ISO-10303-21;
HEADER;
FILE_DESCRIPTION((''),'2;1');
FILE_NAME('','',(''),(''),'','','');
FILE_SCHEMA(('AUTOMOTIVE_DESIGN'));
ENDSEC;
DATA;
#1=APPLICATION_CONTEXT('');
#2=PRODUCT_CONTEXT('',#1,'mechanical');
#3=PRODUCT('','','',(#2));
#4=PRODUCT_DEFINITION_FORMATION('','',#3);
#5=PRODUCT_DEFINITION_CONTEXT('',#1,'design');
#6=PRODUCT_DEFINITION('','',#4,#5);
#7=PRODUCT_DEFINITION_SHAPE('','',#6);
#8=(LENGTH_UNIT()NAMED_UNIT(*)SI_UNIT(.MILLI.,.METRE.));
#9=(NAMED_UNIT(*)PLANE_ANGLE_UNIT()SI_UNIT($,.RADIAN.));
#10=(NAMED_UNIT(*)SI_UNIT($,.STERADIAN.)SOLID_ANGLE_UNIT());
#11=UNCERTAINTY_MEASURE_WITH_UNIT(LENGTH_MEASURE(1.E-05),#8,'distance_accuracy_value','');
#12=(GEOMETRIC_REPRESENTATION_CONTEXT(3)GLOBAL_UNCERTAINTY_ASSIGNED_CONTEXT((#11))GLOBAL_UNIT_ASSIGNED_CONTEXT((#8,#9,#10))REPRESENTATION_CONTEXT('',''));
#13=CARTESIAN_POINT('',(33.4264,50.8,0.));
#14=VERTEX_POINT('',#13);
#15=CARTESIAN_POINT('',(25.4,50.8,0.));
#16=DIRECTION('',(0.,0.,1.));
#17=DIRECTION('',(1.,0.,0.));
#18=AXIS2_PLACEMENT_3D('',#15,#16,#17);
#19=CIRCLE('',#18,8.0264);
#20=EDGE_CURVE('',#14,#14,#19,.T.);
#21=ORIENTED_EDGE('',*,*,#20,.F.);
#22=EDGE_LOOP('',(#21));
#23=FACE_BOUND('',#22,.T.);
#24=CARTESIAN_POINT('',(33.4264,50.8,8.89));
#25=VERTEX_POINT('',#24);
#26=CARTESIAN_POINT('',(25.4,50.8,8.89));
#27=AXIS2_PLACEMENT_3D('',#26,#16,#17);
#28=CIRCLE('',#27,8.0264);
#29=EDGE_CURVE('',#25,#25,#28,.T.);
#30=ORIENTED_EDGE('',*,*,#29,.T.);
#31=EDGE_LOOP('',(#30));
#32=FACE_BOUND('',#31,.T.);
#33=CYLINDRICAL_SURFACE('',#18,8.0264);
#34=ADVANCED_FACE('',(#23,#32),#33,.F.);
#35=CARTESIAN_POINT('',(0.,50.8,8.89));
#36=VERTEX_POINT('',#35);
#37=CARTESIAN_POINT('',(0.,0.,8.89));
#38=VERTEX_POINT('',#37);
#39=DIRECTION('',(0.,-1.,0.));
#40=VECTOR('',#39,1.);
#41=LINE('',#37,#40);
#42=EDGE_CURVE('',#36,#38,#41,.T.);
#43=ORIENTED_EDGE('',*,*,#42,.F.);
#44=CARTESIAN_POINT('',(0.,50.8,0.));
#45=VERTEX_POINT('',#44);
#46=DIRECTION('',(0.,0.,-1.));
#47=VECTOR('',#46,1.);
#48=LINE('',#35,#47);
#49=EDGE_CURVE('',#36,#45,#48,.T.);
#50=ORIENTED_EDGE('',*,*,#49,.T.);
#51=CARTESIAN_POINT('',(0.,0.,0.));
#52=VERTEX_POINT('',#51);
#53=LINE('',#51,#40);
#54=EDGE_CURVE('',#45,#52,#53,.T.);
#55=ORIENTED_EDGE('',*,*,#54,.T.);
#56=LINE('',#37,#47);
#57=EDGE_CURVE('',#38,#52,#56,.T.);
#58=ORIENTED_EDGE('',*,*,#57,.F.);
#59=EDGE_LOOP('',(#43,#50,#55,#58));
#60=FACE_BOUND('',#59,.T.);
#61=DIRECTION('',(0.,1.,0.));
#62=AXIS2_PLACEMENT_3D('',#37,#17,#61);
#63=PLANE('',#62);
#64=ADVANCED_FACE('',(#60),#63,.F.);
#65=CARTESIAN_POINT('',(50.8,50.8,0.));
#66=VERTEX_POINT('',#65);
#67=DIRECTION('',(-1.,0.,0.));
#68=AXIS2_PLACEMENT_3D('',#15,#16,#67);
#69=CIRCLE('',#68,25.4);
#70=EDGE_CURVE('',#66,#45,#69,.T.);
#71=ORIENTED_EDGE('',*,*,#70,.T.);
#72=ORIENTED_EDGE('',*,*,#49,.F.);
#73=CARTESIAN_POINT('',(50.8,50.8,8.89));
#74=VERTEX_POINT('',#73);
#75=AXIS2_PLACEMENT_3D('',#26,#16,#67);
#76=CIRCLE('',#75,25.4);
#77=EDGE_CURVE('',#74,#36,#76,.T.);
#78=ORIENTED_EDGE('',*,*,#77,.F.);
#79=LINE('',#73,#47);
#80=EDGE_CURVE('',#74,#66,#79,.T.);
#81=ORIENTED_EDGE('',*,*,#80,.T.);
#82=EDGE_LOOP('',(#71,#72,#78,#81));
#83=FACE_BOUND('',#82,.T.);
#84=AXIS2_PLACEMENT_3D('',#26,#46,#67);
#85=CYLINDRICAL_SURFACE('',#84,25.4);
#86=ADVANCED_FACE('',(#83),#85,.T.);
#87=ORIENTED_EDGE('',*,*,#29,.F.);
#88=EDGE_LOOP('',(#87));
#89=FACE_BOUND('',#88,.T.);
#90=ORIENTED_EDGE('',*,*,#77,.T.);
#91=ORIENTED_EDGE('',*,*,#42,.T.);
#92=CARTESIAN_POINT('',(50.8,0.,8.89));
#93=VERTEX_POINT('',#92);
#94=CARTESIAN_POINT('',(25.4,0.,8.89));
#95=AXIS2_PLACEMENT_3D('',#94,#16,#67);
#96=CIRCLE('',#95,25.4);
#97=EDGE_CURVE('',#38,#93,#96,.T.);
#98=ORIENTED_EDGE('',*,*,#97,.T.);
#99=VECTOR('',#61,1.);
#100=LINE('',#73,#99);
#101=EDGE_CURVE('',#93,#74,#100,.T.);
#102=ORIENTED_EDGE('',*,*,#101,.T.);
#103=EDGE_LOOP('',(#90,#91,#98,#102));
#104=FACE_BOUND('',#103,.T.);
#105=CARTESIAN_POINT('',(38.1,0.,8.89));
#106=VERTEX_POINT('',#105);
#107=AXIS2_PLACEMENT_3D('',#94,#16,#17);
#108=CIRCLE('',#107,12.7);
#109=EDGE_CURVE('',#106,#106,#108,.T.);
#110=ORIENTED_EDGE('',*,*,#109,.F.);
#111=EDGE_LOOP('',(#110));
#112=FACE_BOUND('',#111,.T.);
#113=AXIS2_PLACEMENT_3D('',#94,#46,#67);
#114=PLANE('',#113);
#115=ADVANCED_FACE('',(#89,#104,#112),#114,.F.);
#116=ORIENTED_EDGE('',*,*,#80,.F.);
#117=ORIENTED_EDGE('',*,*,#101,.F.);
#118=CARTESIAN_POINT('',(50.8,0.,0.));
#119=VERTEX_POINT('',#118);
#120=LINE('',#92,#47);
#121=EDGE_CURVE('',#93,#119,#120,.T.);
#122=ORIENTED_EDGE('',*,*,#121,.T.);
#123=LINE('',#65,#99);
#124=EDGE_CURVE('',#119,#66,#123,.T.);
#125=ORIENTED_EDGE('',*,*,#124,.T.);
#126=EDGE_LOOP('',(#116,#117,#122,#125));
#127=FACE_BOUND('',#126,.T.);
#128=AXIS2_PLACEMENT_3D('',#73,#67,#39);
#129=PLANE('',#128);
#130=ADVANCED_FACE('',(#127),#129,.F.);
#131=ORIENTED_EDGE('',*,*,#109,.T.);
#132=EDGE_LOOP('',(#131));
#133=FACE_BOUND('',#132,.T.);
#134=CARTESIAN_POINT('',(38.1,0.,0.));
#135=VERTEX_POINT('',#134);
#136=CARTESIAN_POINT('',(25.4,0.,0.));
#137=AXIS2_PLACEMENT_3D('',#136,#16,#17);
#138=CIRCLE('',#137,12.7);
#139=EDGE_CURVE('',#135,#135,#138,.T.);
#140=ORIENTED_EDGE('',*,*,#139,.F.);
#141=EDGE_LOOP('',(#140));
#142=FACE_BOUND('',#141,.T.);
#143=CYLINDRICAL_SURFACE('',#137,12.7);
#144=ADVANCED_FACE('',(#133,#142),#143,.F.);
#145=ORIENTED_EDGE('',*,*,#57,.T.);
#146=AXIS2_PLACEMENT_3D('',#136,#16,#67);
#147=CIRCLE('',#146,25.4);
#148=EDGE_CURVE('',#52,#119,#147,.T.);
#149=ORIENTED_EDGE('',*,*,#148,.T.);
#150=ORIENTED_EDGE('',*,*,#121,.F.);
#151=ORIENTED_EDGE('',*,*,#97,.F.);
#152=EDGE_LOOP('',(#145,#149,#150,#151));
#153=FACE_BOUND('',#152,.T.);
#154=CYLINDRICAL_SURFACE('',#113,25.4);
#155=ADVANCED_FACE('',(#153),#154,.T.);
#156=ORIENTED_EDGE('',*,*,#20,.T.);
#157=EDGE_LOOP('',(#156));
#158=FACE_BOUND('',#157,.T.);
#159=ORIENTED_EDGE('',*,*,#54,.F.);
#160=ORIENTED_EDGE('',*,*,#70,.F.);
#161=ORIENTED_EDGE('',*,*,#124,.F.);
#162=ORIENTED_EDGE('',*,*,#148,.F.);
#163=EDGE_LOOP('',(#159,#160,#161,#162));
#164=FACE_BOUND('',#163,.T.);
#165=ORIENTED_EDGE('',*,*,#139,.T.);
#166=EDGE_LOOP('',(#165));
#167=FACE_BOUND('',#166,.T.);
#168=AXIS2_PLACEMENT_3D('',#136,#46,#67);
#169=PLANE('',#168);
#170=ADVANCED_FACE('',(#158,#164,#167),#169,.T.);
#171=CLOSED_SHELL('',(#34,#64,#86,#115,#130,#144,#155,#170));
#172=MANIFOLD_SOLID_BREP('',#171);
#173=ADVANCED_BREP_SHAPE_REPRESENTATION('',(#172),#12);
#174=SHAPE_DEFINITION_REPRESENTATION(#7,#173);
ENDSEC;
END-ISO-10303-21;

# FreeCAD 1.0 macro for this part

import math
import FreeCAD as App
import Part
import Sketcher

V = App.Vector
Q = App.Units.Quantity

doc = App.newDocument("Part")
body = doc.addObject("PartDesign::Body", "Body")

sketch1 = body.newObject("Sketcher::SketchObject", "Sketch")
sketch1.AttachmentSupport = (doc.getObject("XY_Plane"), [""])
sketch1.MapMode = "FlatFace"
sketch1.addGeometry([
    Part.LineSegment(V(0, 51, 0), V(0, 0, 0)),
    Part.ArcOfCircle(Part.Circle(V(25, 0, 0), V(0, 0, 1), 25), math.radians(180), math.radians(360)),
    Part.LineSegment(V(51, 0, 0), V(51, 51, 0)),
    Part.ArcOfCircle(Part.Circle(V(25, 51, 0), V(0, 0, 1), 25), math.radians(0), math.radians(180)),
], False)
sketch1.addConstraint([
    Sketcher.Constraint("Tangent", 0, 2, 1, 1),
    Sketcher.Constraint("Tangent", 1, 2, 2, 1),
    Sketcher.Constraint("Tangent", 2, 2, 3, 1),
    Sketcher.Constraint("Tangent", 3, 2, 0, 1),
    Sketcher.Constraint("Vertical", 0),
    Sketcher.Constraint("Vertical", 2),
    Sketcher.Constraint("Coincident", 0, 2, -1, 1),
    Sketcher.Constraint("Radius", 1, Q("1 in")),
    Sketcher.Constraint("DistanceY", 0, 2, 0, 1, Q("2 in")),
])
pad1 = body.newObject("PartDesign::Pad", "Pad")
pad1.Profile = sketch1
pad1.Length = Q("0.35 in")

sketch2 = body.newObject("Sketcher::SketchObject", "Sketch001")
sketch2.AttachmentSupport = (doc.getObject("XY_Plane"), [""])
sketch2.MapMode = "FlatFace"
sketch2.AttachmentOffset = App.Placement(V(0, 0, 0.35 * 25.4), App.Rotation())
sketch2.addGeometry([
    Part.Circle(V(25, 0, 0), V(0, 0, 1), 13),
    Part.Circle(V(25, 51, 0), V(0, 0, 1), 8),
], False)
sketch2.addConstraint([
    Sketcher.Constraint("PointOnObject", 0, 3, -1),
    Sketcher.Constraint("Vertical", 0, 3, 1, 3),
    Sketcher.Constraint("Diameter", 0, Q("1 in")),
    Sketcher.Constraint("Diameter", 1, Q("0.632 in")),
    Sketcher.Constraint("DistanceX", -1, 1, 0, 3, Q("1 in")),
    Sketcher.Constraint("DistanceY", -1, 1, 1, 3, Q("2 in")),
])
pocket1 = body.newObject("PartDesign::Pocket", "Pocket")
pocket1.Profile = sketch2
pocket1.Type = "ThroughAll"

doc.recompute()
